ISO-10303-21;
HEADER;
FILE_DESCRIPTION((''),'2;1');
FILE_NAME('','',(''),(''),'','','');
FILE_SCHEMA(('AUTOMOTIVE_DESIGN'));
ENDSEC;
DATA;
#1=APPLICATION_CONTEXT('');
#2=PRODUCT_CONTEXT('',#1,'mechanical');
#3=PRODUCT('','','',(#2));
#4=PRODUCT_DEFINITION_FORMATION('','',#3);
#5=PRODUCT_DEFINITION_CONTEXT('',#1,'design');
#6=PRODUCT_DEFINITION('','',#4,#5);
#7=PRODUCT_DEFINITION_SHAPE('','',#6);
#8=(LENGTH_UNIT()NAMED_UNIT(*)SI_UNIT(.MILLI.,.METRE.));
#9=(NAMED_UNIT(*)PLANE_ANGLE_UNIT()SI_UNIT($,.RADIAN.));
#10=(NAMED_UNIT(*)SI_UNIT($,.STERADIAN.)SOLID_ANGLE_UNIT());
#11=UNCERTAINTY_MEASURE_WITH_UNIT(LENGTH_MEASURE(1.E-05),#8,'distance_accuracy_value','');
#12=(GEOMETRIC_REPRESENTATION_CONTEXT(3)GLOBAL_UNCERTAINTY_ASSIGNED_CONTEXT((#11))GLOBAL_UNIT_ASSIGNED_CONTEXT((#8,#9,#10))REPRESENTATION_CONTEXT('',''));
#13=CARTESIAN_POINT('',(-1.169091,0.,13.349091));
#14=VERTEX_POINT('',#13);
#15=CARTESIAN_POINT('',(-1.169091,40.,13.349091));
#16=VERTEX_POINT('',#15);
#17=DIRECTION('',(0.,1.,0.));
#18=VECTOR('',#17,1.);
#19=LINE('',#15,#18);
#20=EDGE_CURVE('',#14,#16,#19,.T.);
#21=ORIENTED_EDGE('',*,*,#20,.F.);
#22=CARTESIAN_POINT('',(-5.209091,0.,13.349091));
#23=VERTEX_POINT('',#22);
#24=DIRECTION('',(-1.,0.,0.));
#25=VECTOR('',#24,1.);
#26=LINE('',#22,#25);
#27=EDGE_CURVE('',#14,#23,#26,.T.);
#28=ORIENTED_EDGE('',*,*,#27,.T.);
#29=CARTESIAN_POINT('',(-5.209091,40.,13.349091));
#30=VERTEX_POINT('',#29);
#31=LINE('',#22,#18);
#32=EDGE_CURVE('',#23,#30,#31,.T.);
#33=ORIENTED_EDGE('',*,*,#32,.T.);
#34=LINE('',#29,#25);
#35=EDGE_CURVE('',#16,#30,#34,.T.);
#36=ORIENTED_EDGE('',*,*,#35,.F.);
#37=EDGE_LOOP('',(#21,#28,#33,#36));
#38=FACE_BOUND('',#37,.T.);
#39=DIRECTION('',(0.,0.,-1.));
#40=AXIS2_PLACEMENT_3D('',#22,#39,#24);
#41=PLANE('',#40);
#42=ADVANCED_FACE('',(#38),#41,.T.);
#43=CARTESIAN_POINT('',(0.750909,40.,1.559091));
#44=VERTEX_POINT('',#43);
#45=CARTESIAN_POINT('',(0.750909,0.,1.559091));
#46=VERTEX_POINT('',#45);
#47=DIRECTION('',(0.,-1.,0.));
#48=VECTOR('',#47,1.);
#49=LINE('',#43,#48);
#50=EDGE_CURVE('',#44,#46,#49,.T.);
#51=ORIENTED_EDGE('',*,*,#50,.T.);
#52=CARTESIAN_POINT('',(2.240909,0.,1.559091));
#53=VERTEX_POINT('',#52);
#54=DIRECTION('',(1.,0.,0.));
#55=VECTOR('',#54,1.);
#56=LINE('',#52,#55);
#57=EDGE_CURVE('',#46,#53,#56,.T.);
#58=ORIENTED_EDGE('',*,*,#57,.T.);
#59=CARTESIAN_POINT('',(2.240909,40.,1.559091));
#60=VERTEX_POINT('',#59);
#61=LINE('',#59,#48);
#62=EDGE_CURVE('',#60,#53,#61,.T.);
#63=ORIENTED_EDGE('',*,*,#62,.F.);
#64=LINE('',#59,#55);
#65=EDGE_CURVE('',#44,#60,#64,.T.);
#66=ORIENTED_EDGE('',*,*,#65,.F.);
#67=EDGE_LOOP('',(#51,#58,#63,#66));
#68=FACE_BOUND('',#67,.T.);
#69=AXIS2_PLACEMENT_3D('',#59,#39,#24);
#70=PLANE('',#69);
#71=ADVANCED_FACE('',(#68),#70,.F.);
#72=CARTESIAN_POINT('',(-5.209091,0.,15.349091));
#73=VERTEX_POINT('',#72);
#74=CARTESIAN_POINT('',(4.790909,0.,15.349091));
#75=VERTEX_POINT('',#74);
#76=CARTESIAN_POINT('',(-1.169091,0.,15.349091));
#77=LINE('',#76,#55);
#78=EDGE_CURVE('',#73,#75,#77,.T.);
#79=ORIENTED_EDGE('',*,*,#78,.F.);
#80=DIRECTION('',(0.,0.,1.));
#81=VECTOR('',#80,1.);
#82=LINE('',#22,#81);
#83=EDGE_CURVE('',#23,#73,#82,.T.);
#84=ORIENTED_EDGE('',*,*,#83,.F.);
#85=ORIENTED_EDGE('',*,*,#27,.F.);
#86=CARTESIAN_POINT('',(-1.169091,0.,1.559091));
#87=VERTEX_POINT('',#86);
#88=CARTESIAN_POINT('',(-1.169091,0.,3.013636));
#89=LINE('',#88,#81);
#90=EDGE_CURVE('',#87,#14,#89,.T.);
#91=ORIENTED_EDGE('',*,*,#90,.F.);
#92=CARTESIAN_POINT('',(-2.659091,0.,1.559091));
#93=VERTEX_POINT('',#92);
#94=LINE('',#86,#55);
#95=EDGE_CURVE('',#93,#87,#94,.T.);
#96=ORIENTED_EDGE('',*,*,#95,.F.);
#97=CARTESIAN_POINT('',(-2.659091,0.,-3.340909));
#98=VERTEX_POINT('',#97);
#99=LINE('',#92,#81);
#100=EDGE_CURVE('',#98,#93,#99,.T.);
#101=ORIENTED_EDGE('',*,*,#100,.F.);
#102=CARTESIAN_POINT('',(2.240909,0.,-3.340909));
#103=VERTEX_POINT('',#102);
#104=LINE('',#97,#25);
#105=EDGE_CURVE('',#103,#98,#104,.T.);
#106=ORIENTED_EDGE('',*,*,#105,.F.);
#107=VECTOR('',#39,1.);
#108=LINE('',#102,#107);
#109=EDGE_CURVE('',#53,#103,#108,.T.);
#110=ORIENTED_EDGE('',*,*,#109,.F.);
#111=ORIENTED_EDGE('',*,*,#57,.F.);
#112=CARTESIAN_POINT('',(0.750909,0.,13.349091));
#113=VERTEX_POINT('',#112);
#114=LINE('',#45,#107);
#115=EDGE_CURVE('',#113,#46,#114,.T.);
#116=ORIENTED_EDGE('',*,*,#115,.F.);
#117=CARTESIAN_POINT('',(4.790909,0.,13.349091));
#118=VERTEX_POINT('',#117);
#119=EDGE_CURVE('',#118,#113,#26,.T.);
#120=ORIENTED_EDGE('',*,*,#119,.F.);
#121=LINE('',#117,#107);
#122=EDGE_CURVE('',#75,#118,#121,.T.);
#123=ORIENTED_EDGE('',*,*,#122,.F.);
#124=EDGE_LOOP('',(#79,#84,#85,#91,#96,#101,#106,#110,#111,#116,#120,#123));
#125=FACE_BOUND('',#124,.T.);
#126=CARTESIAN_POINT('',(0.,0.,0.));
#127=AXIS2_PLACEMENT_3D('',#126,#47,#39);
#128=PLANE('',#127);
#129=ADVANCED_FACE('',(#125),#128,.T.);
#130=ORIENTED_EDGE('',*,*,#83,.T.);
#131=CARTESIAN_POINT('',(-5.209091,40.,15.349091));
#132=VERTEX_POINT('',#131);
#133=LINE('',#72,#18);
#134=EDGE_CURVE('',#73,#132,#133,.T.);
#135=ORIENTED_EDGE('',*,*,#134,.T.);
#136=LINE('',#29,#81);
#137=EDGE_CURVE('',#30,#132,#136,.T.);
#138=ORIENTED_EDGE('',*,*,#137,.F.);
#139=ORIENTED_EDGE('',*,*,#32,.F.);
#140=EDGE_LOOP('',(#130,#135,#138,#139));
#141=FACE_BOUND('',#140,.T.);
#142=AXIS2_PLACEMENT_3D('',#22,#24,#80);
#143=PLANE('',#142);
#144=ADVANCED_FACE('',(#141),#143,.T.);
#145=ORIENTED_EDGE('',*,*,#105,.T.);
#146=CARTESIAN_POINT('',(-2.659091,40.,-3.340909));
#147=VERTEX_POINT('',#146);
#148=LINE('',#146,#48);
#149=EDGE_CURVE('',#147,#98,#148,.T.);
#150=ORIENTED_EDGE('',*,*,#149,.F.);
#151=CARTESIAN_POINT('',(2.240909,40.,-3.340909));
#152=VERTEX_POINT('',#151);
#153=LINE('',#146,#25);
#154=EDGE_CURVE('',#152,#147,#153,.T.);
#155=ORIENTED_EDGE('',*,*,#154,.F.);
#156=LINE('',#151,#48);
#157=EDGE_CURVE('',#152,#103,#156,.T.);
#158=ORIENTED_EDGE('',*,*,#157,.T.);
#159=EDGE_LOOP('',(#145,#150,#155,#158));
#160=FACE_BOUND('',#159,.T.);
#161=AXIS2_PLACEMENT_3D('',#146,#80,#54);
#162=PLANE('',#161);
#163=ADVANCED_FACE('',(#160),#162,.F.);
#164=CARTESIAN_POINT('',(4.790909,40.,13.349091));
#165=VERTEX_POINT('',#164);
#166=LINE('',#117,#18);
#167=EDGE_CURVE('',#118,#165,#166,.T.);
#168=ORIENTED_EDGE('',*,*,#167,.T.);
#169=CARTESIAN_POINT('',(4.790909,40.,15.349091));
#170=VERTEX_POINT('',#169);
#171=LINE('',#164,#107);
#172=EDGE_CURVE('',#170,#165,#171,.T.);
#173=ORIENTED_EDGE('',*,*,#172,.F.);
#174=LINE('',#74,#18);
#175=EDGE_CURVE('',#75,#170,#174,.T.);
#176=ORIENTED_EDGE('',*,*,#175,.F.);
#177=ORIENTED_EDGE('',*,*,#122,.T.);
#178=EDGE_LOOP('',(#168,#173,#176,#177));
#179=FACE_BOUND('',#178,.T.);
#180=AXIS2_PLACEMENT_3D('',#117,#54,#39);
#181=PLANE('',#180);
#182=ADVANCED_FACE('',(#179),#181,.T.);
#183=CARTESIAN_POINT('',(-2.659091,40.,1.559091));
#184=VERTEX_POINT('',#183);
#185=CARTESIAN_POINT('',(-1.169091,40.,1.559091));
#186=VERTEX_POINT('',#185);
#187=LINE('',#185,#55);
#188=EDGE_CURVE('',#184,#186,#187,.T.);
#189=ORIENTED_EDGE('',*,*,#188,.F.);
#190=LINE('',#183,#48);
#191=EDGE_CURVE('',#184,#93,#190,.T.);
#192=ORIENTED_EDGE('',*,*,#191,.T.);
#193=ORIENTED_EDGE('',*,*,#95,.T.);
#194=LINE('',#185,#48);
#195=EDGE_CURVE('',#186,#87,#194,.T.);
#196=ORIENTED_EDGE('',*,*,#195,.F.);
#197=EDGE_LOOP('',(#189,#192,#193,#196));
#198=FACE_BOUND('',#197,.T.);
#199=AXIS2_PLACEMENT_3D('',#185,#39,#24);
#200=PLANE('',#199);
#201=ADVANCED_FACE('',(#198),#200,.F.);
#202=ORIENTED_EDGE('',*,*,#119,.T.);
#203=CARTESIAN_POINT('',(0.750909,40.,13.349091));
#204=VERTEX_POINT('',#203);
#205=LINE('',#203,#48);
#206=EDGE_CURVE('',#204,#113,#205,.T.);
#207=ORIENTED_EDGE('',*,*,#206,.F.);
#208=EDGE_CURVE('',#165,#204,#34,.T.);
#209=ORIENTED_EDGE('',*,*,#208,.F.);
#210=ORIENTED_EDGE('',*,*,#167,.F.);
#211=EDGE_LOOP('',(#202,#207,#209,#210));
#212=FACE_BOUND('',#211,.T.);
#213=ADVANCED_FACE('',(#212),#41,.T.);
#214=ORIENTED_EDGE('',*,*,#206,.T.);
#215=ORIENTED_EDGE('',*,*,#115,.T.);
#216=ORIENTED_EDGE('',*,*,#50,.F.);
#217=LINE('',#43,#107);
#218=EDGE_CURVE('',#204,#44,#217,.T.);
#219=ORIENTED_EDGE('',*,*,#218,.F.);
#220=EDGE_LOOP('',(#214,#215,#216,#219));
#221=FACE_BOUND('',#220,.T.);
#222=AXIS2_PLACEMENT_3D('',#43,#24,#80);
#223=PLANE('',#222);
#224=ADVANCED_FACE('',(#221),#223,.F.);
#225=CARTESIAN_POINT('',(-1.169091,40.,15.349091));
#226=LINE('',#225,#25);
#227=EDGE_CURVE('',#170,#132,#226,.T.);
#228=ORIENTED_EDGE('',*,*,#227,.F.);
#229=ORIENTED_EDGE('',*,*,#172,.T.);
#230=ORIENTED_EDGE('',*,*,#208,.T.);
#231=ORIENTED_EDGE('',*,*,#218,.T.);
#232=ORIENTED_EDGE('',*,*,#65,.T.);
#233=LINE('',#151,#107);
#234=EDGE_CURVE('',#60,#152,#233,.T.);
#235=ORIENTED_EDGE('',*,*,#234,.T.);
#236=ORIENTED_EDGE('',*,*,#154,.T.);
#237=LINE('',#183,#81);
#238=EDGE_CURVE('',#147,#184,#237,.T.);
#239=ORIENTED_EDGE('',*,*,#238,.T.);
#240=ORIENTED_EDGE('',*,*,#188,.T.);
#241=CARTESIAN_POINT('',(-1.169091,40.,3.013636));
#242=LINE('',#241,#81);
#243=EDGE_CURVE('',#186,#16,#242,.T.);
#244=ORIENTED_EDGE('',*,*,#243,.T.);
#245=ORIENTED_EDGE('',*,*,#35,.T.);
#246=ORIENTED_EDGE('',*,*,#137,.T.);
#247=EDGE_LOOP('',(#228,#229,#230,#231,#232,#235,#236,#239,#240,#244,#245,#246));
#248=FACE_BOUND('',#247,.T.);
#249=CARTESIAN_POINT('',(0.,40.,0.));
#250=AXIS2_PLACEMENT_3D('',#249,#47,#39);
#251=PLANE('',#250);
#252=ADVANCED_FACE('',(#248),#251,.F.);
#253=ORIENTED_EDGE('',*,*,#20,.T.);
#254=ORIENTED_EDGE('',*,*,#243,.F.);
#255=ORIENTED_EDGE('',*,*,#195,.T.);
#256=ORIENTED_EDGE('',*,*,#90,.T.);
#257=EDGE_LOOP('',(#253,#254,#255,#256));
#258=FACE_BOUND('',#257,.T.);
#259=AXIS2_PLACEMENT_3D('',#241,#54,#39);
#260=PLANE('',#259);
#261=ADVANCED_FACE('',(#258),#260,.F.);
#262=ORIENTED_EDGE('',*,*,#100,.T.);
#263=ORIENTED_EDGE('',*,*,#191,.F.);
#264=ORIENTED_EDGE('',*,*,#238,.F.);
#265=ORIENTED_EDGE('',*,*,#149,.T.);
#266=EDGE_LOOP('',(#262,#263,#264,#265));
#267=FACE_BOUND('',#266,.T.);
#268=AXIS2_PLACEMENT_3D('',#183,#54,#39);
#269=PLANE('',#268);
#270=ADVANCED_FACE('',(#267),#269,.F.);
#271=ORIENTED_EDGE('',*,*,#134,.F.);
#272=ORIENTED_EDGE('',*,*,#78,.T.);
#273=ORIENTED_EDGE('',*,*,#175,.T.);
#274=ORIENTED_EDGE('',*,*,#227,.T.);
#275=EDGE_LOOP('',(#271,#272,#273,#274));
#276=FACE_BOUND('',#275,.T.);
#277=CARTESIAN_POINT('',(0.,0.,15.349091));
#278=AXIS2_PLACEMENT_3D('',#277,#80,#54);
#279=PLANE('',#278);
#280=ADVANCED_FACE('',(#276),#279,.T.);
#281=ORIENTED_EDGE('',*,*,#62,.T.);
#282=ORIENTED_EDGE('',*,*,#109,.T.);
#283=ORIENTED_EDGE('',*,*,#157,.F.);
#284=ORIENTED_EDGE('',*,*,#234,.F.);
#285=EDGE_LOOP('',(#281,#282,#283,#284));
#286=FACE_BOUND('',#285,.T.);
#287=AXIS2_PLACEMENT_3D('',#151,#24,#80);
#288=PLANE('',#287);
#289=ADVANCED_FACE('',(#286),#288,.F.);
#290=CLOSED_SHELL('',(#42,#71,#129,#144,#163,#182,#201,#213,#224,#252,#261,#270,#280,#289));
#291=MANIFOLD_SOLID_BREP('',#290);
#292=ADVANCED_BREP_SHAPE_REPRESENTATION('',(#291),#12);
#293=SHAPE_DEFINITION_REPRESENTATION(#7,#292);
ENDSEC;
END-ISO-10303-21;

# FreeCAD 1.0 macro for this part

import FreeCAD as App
import Part
import Sketcher
Q = App.Units.Quantity

doc = App.newDocument("Part")
body = doc.addObject("PartDesign::Body", "Body")

# Sketch on XZ plane
sketch1 = doc.addObject("Sketcher::SketchObject", "Sketch")
body.addObject(sketch1)
sketch1.AttachmentSupport = (doc.XZ_Plane, [""])
sketch1.MapMode = "FlatFace"
sketch1.addGeometry([
    Part.LineSegment(App.Vector(-1.169091, 1.559091, 0), App.Vector(-1.169091, 3.013636, 0)),  # 0
    Part.LineSegment(App.Vector(-1.169091, 3.013636, 0), App.Vector(0.750909, 3.013636, 0)),  # 1
    Part.LineSegment(App.Vector(0.750909, 3.013636, 0), App.Vector(0.750909, 1.559091, 0)),  # 2
    Part.LineSegment(App.Vector(0.750909, 1.559091, 0), App.Vector(2.240909, 1.559091, 0)),  # 3
    Part.LineSegment(App.Vector(2.240909, 1.559091, 0), App.Vector(2.240909, -3.340909, 0)),  # 4
    Part.LineSegment(App.Vector(2.240909, -3.340909, 0), App.Vector(-2.659091, -3.340909, 0)),  # 5
    Part.LineSegment(App.Vector(-2.659091, -3.340909, 0), App.Vector(-2.659091, 1.559091, 0)),  # 6
    Part.LineSegment(App.Vector(-2.659091, 1.559091, 0), App.Vector(-1.169091, 1.559091, 0)),  # 7
], False)
sketch1.addConstraint([
    Sketcher.Constraint("Coincident", 0, 2, 1, 1),
    Sketcher.Constraint("Coincident", 1, 2, 2, 1),
    Sketcher.Constraint("Coincident", 2, 2, 3, 1),
    Sketcher.Constraint("Coincident", 3, 2, 4, 1),
    Sketcher.Constraint("Coincident", 4, 2, 5, 1),
    Sketcher.Constraint("Coincident", 5, 2, 6, 1),
    Sketcher.Constraint("Coincident", 6, 2, 7, 1),
    Sketcher.Constraint("Coincident", 7, 2, 0, 1),
    Sketcher.Constraint("Vertical", 0),
    Sketcher.Constraint("Horizontal", 1),
    Sketcher.Constraint("Vertical", 2),
    Sketcher.Constraint("Horizontal", 3),
    Sketcher.Constraint("Vertical", 4),
    Sketcher.Constraint("Horizontal", 5),
    Sketcher.Constraint("Vertical", 6),
    Sketcher.Constraint("Horizontal", 7),
    Sketcher.Constraint("Horizontal", 3, 2, 6, 2),
    Sketcher.Constraint("Equal", 3, 7),
    Sketcher.Constraint("Equal", 5, 4),
    Sketcher.Constraint("DistanceX", 5, 2, 5, 1, Q("4.9 mm")),
    Sketcher.Constraint("DistanceX", 1, 1, 1, 2, Q("1.92 mm")),
    Sketcher.Constraint("DistanceY", 0, 1, 0, 2, Q("1.454545 mm")),
    Sketcher.Constraint("DistanceX", 0, 2, -1, 1, Q("1.169091 mm")),
    Sketcher.Constraint("DistanceY", -1, 1, 2, 2, Q("1.559091 mm")),
])
pad1 = doc.addObject("PartDesign::Pad", "Pad")
body.addObject(pad1)
pad1.Profile = sketch1
pad1.Length = 40
pad1.Reversed = True

# Sketch on XZ plane
sketch2 = doc.addObject("Sketcher::SketchObject", "Sketch001")
body.addObject(sketch2)
sketch2.AttachmentSupport = (doc.XZ_Plane, [""])
sketch2.MapMode = "FlatFace"
sketch2.AttachmentOffset = App.Placement(App.Vector(0, 0, -40), App.Rotation())
sketch2.addGeometry([
    Part.LineSegment(App.Vector(-1.169091, 3.013636, 0), App.Vector(-1.169091, 4.349091, 0)),
    Part.LineSegment(App.Vector(-1.169091, 4.349091, 0), App.Vector(0.750909, 4.349091, 0)),
    Part.LineSegment(App.Vector(0.750909, 4.349091, 0), App.Vector(0.750909, 3.013636, 0)),
    Part.LineSegment(App.Vector(0.750909, 3.013636, 0), App.Vector(-1.169091, 3.013636, 0)),
], False)
sketch2.addConstraint([
    Sketcher.Constraint("Coincident", 0, 2, 1, 1),
    Sketcher.Constraint("Coincident", 1, 2, 2, 1),
    Sketcher.Constraint("Coincident", 2, 2, 3, 1),
    Sketcher.Constraint("Coincident", 3, 2, 0, 1),
    Sketcher.Constraint("Vertical", 0),
    Sketcher.Constraint("Horizontal", 1),
    Sketcher.Constraint("Vertical", 2),
    Sketcher.Constraint("Horizontal", 3),
    Sketcher.Constraint("DistanceX", 1, 1, 1, 2, Q("1.92 mm")),
    Sketcher.Constraint("DistanceY", 0, 1, 0, 2, Q("1.335455 mm")),
    Sketcher.Constraint("DistanceX", 0, 2, -1, 1, Q("1.169091 mm")),
    Sketcher.Constraint("DistanceY", -1, 1, 0, 2, Q("4.349091 mm")),
])
pad2 = doc.addObject("PartDesign::Pad", "Pad001")
body.addObject(pad2)
pad2.Profile = sketch2
pad2.Length = 40

# Sketch on XY plane
sketch3 = doc.addObject("Sketcher::SketchObject", "Sketch002")
body.addObject(sketch3)
sketch3.AttachmentSupport = (doc.XY_Plane, [""])
sketch3.MapMode = "FlatFace"
sketch3.AttachmentOffset = App.Placement(App.Vector(0, 0, 4.349091), App.Rotation())
sketch3.addGeometry([
    Part.LineSegment(App.Vector(-1.169091, 40, 0), App.Vector(-1.169091, 0, 0)),
    Part.LineSegment(App.Vector(-1.169091, 0, 0), App.Vector(0.750909, 0, 0)),
    Part.LineSegment(App.Vector(0.750909, 0, 0), App.Vector(0.750909, 40, 0)),
    Part.LineSegment(App.Vector(0.750909, 40, 0), App.Vector(-1.169091, 40, 0)),
], False)
sketch3.addConstraint([
    Sketcher.Constraint("Coincident", 0, 2, 1, 1),
    Sketcher.Constraint("Coincident", 1, 2, 2, 1),
    Sketcher.Constraint("Coincident", 2, 2, 3, 1),
    Sketcher.Constraint("Coincident", 3, 2, 0, 1),
    Sketcher.Constraint("Vertical", 0),
    Sketcher.Constraint("Horizontal", 1),
    Sketcher.Constraint("Vertical", 2),
    Sketcher.Constraint("Horizontal", 3),
    Sketcher.Constraint("PointOnObject", 0, 2, -1),
    Sketcher.Constraint("DistanceY", 0, 2, 0, 1, Q("40 mm")),
    Sketcher.Constraint("DistanceX", 1, 1, 1, 2, Q("1.92 mm")),
    Sketcher.Constraint("DistanceX", 0, 2, -1, 1, Q("1.169091 mm")),
])
pad3 = doc.addObject("PartDesign::Pad", "Pad002")
body.addObject(pad3)
pad3.Profile = sketch3
pad3.Length = 1

# Sketch on XY plane
sketch4 = doc.addObject("Sketcher::SketchObject", "Sketch003")
body.addObject(sketch4)
sketch4.AttachmentSupport = (doc.XY_Plane, [""])
sketch4.MapMode = "FlatFace"
sketch4.AttachmentOffset = App.Placement(App.Vector(0, 0, 5.349091), App.Rotation())
sketch4.addGeometry([
    Part.LineSegment(App.Vector(-1.169091, 40, 0), App.Vector(-1.169091, 0, 0)),
    Part.LineSegment(App.Vector(-1.169091, 0, 0), App.Vector(0.750909, 0, 0)),
    Part.LineSegment(App.Vector(0.750909, 0, 0), App.Vector(0.750909, 40, 0)),
    Part.LineSegment(App.Vector(0.750909, 40, 0), App.Vector(-1.169091, 40, 0)),
], False)
sketch4.addConstraint([
    Sketcher.Constraint("Coincident", 0, 2, 1, 1),
    Sketcher.Constraint("Coincident", 1, 2, 2, 1),
    Sketcher.Constraint("Coincident", 2, 2, 3, 1),
    Sketcher.Constraint("Coincident", 3, 2, 0, 1),
    Sketcher.Constraint("Vertical", 0),
    Sketcher.Constraint("Horizontal", 1),
    Sketcher.Constraint("Vertical", 2),
    Sketcher.Constraint("Horizontal", 3),
    Sketcher.Constraint("PointOnObject", 0, 2, -1),
    Sketcher.Constraint("DistanceY", 0, 2, 0, 1, Q("40 mm")),
    Sketcher.Constraint("DistanceX", 1, 1, 1, 2, Q("1.92 mm")),
    Sketcher.Constraint("DistanceX", 0, 2, -1, 1, Q("1.169091 mm")),
])
pad4 = doc.addObject("PartDesign::Pad", "Pad003")
body.addObject(pad4)
pad4.Profile = sketch4
pad4.Length = 10

# Sketch on XZ plane
sketch5 = doc.addObject("Sketcher::SketchObject", "Sketch004")
body.addObject(sketch5)
sketch5.AttachmentSupport = (doc.XZ_Plane, [""])
sketch5.MapMode = "FlatFace"
sketch5.AttachmentOffset = App.Placement(App.Vector(0, 0, -40), App.Rotation())
sketch5.addGeometry([
    Part.LineSegment(App.Vector(-5.209091, 13.349091, 0), App.Vector(-5.209091, 15.349091, 0)),
    Part.LineSegment(App.Vector(-5.209091, 15.349091, 0), App.Vector(4.790909, 15.349091, 0)),
    Part.LineSegment(App.Vector(4.790909, 15.349091, 0), App.Vector(4.790909, 13.349091, 0)),
    Part.LineSegment(App.Vector(4.790909, 13.349091, 0), App.Vector(-5.209091, 13.349091, 0)),
], False)
sketch5.addConstraint([
    Sketcher.Constraint("Coincident", 0, 2, 1, 1),
    Sketcher.Constraint("Coincident", 1, 2, 2, 1),
    Sketcher.Constraint("Coincident", 2, 2, 3, 1),
    Sketcher.Constraint("Coincident", 3, 2, 0, 1),
    Sketcher.Constraint("Vertical", 0),
    Sketcher.Constraint("Horizontal", 1),
    Sketcher.Constraint("Vertical", 2),
    Sketcher.Constraint("Horizontal", 3),
    Sketcher.Constraint("DistanceX", 1, 1, 1, 2, Q("10 mm")),
    Sketcher.Constraint("DistanceY", 0, 1, 0, 2, Q("2 mm")),
    Sketcher.Constraint("DistanceX", 0, 2, -1, 1, Q("5.209091 mm")),
    Sketcher.Constraint("DistanceY", -1, 1, 0, 2, Q("15.349091 mm")),
])
pad5 = doc.addObject("PartDesign::Pad", "Pad004")
body.addObject(pad5)
pad5.Profile = sketch5
pad5.Length = 40

doc.recompute()
